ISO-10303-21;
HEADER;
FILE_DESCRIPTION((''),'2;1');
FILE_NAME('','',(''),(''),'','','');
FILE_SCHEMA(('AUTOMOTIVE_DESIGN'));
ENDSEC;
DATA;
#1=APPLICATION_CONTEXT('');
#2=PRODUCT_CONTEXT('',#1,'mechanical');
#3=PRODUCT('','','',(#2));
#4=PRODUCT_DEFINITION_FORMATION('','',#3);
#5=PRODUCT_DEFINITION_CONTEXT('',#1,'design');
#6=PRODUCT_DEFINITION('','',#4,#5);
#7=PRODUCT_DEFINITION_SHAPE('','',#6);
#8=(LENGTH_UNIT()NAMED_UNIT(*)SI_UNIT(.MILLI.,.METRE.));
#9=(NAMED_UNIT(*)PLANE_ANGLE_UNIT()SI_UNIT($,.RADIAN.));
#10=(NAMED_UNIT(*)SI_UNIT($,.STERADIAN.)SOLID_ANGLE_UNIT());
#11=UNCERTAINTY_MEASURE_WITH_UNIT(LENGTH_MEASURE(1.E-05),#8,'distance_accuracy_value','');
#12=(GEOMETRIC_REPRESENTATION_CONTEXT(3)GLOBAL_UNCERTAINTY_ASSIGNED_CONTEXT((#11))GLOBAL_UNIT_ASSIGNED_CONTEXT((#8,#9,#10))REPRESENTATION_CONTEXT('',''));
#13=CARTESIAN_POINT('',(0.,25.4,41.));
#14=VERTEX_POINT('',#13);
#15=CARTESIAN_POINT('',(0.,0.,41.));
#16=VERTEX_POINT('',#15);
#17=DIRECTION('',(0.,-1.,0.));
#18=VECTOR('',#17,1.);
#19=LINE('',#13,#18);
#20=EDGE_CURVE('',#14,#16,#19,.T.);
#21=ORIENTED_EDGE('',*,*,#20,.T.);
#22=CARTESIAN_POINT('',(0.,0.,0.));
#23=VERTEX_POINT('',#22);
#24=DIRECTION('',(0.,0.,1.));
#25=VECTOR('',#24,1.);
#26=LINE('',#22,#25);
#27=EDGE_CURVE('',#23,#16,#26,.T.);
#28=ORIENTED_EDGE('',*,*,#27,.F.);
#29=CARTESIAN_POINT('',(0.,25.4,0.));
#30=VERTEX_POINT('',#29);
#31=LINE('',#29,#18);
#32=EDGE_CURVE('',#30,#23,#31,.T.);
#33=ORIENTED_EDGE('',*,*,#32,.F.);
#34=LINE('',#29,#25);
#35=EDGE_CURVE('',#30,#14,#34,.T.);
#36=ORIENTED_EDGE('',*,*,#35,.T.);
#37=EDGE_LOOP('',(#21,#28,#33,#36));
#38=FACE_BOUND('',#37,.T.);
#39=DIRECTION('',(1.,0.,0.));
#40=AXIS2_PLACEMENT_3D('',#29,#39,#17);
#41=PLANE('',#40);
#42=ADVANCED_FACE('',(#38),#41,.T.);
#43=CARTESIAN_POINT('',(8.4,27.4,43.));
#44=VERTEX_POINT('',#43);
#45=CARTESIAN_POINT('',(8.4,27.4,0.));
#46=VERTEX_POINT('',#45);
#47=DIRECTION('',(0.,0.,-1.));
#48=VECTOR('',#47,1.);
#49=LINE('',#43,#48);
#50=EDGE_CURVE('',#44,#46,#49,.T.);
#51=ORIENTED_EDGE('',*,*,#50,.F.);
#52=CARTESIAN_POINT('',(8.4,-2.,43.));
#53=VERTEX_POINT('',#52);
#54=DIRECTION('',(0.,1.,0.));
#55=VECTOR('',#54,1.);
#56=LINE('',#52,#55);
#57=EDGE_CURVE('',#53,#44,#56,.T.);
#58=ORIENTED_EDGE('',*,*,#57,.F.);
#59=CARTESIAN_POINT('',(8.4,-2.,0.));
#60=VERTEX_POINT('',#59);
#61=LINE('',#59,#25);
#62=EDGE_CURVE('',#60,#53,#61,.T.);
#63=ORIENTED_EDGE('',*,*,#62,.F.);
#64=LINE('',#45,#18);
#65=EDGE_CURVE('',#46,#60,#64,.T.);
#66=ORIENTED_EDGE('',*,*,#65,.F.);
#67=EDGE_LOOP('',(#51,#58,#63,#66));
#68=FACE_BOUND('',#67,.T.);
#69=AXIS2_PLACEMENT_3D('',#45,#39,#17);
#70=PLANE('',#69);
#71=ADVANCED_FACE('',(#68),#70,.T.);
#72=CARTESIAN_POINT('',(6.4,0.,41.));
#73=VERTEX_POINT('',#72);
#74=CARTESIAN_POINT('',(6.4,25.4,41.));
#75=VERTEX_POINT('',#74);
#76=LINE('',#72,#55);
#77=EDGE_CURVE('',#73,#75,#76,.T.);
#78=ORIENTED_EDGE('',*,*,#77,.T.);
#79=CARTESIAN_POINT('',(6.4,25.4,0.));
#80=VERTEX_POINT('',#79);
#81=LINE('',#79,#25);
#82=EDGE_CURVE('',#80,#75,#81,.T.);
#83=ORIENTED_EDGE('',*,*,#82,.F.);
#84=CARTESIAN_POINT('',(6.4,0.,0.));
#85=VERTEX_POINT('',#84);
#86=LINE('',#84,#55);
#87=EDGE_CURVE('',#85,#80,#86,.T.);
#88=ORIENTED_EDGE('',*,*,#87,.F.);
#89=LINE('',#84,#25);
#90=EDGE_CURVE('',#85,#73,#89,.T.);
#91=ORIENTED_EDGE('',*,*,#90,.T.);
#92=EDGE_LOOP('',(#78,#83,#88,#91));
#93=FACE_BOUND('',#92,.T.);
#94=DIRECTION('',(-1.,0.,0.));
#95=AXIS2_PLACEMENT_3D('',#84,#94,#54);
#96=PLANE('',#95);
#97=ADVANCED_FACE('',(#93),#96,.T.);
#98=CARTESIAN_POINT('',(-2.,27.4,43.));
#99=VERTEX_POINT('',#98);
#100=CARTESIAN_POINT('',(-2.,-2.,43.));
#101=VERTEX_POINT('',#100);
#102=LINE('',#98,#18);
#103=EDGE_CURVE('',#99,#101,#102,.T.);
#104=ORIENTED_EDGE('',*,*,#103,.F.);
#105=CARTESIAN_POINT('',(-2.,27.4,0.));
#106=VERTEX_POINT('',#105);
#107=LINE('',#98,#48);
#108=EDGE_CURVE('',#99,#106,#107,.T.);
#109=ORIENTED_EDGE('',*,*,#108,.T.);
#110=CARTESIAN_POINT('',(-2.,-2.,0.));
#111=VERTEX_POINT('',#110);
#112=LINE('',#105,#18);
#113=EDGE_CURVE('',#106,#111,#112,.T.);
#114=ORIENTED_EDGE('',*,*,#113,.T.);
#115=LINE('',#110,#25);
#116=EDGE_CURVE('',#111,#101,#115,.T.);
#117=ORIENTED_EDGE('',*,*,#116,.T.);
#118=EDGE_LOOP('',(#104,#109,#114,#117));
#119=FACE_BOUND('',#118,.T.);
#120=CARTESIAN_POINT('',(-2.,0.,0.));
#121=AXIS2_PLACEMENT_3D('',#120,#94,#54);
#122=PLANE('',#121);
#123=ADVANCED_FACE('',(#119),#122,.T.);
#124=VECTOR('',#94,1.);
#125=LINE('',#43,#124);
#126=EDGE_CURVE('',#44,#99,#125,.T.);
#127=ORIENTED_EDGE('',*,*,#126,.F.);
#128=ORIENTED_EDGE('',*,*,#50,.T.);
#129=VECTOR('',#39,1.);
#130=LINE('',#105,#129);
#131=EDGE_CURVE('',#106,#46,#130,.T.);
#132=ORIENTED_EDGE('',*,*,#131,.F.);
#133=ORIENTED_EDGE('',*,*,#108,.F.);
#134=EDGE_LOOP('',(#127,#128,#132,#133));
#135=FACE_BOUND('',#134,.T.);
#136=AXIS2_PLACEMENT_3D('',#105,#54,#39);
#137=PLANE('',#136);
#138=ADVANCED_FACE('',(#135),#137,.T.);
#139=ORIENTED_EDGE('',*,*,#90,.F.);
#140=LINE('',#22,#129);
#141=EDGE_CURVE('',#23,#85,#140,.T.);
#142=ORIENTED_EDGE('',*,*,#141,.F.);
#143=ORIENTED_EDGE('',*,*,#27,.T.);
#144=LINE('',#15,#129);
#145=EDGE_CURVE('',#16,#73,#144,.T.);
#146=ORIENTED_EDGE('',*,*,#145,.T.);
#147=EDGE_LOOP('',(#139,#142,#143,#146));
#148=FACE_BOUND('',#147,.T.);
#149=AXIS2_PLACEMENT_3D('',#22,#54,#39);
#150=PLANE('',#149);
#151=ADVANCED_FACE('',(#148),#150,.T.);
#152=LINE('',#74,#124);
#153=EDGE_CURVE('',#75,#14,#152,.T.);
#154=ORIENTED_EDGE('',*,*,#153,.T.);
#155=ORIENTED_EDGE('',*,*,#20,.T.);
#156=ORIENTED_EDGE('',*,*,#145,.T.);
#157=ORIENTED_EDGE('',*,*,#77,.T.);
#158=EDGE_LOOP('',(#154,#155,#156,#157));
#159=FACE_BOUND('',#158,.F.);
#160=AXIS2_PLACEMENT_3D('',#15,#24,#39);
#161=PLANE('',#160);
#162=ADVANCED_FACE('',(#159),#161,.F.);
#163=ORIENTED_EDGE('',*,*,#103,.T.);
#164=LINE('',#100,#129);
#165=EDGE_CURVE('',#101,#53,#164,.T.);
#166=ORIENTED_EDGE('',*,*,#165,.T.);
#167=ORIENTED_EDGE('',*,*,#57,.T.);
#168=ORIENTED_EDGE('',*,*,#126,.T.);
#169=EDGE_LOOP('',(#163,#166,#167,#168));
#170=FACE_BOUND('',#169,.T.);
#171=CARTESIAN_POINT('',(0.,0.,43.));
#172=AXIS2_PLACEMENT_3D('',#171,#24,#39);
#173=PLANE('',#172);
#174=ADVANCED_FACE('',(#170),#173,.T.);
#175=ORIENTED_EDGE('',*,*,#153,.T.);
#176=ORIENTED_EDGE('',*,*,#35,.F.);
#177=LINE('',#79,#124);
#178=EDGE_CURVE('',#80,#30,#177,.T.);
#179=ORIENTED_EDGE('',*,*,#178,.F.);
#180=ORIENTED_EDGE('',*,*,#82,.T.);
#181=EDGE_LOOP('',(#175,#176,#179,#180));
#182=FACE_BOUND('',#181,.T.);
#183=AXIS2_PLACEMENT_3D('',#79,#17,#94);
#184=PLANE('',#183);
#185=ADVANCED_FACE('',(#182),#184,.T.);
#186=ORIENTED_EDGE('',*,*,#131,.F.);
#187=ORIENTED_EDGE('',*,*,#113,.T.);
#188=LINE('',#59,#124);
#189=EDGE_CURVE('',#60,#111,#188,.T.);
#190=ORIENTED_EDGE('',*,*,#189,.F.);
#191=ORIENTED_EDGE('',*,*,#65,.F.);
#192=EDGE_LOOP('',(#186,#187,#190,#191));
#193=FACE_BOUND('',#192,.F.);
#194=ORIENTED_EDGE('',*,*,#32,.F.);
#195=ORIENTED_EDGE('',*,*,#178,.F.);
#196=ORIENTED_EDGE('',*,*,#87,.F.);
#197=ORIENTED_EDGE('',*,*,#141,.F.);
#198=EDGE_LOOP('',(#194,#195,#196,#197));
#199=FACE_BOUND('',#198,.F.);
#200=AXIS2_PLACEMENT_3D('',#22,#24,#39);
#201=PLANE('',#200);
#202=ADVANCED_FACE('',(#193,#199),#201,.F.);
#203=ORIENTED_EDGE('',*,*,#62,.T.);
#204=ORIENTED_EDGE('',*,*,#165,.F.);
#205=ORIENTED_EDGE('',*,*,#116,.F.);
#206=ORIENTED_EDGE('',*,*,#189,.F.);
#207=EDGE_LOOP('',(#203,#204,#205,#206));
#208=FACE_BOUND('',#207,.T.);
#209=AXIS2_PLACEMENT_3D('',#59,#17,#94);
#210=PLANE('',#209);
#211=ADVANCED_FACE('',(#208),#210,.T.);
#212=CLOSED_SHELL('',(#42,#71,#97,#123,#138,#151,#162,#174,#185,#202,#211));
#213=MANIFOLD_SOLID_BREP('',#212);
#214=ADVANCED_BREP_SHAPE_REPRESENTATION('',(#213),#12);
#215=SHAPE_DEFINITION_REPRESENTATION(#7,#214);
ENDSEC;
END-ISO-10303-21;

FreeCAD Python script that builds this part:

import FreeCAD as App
import Part
import Sketcher
Q = App.Units.Quantity

doc = App.newDocument("Part")
body = doc.addObject("PartDesign::Body", "Body")

sketch1 = doc.addObject("Sketcher::SketchObject", "Sketch")
body.addObject(sketch1)
sketch1.AttachmentSupport = (doc.XY_Plane, [""])
sketch1.MapMode = "FlatFace"
sketch1.addGeometry([
    Part.LineSegment(App.Vector(-2, 27, 0), App.Vector(-2, -2, 0)),
    Part.LineSegment(App.Vector(-2, -2, 0), App.Vector(8, -2, 0)),
    Part.LineSegment(App.Vector(8, -2, 0), App.Vector(8, 27, 0)),
    Part.LineSegment(App.Vector(8, 27, 0), App.Vector(-2, 27, 0)),
    Part.LineSegment(App.Vector(6, 0, 0), App.Vector(0, 0, 0)),
    Part.LineSegment(App.Vector(0, 0, 0), App.Vector(0, 25, 0)),
    Part.LineSegment(App.Vector(0, 25, 0), App.Vector(6, 25, 0)),
    Part.LineSegment(App.Vector(6, 25, 0), App.Vector(6, 0, 0)),
], False)
sketch1.addConstraint([
    Sketcher.Constraint("Coincident", 0, 2, 1, 1),
    Sketcher.Constraint("Coincident", 1, 2, 2, 1),
    Sketcher.Constraint("Coincident", 2, 2, 3, 1),
    Sketcher.Constraint("Coincident", 3, 2, 0, 1),
    Sketcher.Constraint("Coincident", 4, 2, 5, 1),
    Sketcher.Constraint("Coincident", 5, 2, 6, 1),
    Sketcher.Constraint("Coincident", 6, 2, 7, 1),
    Sketcher.Constraint("Coincident", 7, 2, 4, 1),
    Sketcher.Constraint("Vertical", 0),
    Sketcher.Constraint("Horizontal", 1),
    Sketcher.Constraint("Vertical", 2),
    Sketcher.Constraint("Horizontal", 3),
    Sketcher.Constraint("Horizontal", 4),
    Sketcher.Constraint("Vertical", 5),
    Sketcher.Constraint("Horizontal", 6),
    Sketcher.Constraint("Vertical", 7),
    Sketcher.Constraint("Coincident", 4, 2, -1, 1),
    Sketcher.Constraint("DistanceX", 1, 1, 1, 2, Q("10.4 mm")),
    Sketcher.Constraint("DistanceX", 4, 2, 4, 1, Q("6.4 mm")),
    Sketcher.Constraint("DistanceY", 0, 2, 0, 1, Q("29.4 mm")),
    Sketcher.Constraint("DistanceY", 5, 1, 5, 2, Q("25.4 mm")),
    Sketcher.Constraint("DistanceX", 0, 2, -1, 1, Q("2 mm")),
    Sketcher.Constraint("DistanceY", 0, 2, -1, 1, Q("2 mm")),
])
pad1 = doc.addObject("PartDesign::Pad", "Pad")
body.addObject(pad1)
pad1.Profile = sketch1
pad1.Length = 41

sketch2 = doc.addObject("Sketcher::SketchObject", "Sketch001")
body.addObject(sketch2)
sketch2.AttachmentSupport = (doc.XY_Plane, [""])
sketch2.MapMode = "FlatFace"
sketch2.AttachmentOffset = App.Placement(App.Vector(0, 0, 41), App.Rotation())
sketch2.addGeometry([
    Part.LineSegment(App.Vector(-2, 27, 0), App.Vector(-2, -2, 0)),
    Part.LineSegment(App.Vector(-2, -2, 0), App.Vector(8, -2, 0)),
    Part.LineSegment(App.Vector(8, -2, 0), App.Vector(8, 27, 0)),
    Part.LineSegment(App.Vector(8, 27, 0), App.Vector(-2, 27, 0)),
], False)
sketch2.addConstraint([
    Sketcher.Constraint("Coincident", 0, 2, 1, 1),
    Sketcher.Constraint("Coincident", 1, 2, 2, 1),
    Sketcher.Constraint("Coincident", 2, 2, 3, 1),
    Sketcher.Constraint("Coincident", 3, 2, 0, 1),
    Sketcher.Constraint("Vertical", 0),
    Sketcher.Constraint("Horizontal", 1),
    Sketcher.Constraint("Vertical", 2),
    Sketcher.Constraint("Horizontal", 3),
    Sketcher.Constraint("DistanceX", 1, 1, 1, 2, Q("10.4 mm")),
    Sketcher.Constraint("DistanceY", 0, 2, 0, 1, Q("29.4 mm")),
    Sketcher.Constraint("DistanceX", 0, 2, -1, 1, Q("2 mm")),
    Sketcher.Constraint("DistanceY", 0, 2, -1, 1, Q("2 mm")),
])
pad2 = doc.addObject("PartDesign::Pad", "Pad001")
body.addObject(pad2)
pad2.Profile = sketch2
pad2.Length = 2

doc.recompute()
